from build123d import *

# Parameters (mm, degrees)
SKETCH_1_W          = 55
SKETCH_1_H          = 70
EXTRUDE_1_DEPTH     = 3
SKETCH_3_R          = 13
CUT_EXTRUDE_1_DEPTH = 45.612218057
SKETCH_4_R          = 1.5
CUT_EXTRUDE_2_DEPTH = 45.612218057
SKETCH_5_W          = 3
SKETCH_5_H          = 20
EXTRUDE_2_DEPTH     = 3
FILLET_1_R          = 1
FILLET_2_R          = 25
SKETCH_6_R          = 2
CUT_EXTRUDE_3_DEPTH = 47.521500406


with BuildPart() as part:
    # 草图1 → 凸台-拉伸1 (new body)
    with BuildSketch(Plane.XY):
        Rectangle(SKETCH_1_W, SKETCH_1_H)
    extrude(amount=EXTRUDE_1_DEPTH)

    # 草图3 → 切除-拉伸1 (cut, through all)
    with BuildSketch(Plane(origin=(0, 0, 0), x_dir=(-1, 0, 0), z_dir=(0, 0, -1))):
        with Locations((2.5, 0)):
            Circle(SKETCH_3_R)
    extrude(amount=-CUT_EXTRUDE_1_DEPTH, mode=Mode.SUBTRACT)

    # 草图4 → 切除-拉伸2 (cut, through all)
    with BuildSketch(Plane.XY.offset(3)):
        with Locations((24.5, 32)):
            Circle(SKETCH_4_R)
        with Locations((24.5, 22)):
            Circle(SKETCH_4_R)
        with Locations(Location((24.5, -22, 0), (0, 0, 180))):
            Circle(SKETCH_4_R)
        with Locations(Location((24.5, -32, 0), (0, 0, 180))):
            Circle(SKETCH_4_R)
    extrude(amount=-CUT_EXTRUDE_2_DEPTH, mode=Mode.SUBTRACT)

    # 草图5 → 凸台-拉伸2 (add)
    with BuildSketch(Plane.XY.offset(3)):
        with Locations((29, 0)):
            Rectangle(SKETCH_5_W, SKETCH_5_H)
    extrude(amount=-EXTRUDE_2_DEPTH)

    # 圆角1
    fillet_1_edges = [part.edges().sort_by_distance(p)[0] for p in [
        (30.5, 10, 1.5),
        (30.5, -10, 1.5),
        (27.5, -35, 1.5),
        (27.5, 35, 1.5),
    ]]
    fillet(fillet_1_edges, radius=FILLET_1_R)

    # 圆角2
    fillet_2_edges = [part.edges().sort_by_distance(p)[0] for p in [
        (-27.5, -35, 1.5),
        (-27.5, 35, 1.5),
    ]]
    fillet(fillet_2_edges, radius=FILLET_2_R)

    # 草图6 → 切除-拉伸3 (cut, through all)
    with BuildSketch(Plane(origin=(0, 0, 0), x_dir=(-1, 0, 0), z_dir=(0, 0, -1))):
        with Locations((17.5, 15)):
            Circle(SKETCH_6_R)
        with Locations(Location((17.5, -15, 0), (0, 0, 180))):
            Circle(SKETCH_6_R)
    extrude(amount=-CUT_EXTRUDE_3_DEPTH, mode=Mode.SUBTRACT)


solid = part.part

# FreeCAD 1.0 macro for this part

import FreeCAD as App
import Part
import Sketcher


def edges_at(feature, points):
    """Names of the edges that pass closest to the given points."""
    edges = feature.Shape.Edges
    near = lambda p: min(range(len(edges)), key=lambda i: edges[i].distToShape(Part.Vertex(*p))[0])
    return sorted({f"Edge{near(p) + 1}" for p in points})


def add_polygon(sketch, points):
    """Adds a closed chain of lines whose ends are joined by coincident constraints."""
    first, n = sketch.GeometryCount, len(points)
    for a, b in zip(points, points[1:] + points[:1]):
        sketch.addGeometry(Part.LineSegment(App.Vector(*a, 0), App.Vector(*b, 0)), False)
    for i in range(n):
        sketch.addConstraint(Sketcher.Constraint("Coincident", first + i, 2, first + (i + 1) % n, 1))

doc = App.newDocument("Part")
body = doc.addObject("PartDesign::Body", "Body")

# Sketch on XY plane
sketch1 = body.newObject("Sketcher::SketchObject", "Sketch")
sketch1.AttachmentSupport = (doc.getObject("XY_Plane"), [""])
sketch1.MapMode = "FlatFace"
add_polygon(sketch1, [(-28, 35), (-28, -35), (28, -35), (28, 35)])  # lines 0-3
sketch1.addConstraint([
    Sketcher.Constraint("Vertical", 0),
    Sketcher.Constraint("Horizontal", 1),
    Sketcher.Constraint("Vertical", 2),
    Sketcher.Constraint("Horizontal", 3),
    Sketcher.Constraint("Symmetric", 0, 2, 2, 2, -1, 1),
    Sketcher.Constraint("DistanceX", 1, 1, 1, 2, 55.0),
    Sketcher.Constraint("DistanceY", 0, 2, 0, 1, 70.0),
])
pad1 = body.newObject("PartDesign::Pad", "Pad")
pad1.Profile = sketch1
pad1.Length = 3

# Sketch on XY plane
sketch2 = body.newObject("Sketcher::SketchObject", "Sketch001")
sketch2.AttachmentSupport = (doc.getObject("XY_Plane"), [""])
sketch2.MapMode = "FlatFace"
sketch2.addGeometry(Part.Circle(App.Vector(-2, 0, 0), App.Vector(0, 0, 1), 13), False)
sketch2.addConstraint([
    Sketcher.Constraint("PointOnObject", 0, 3, -1),
    Sketcher.Constraint("Diameter", 0, 26.0),
    Sketcher.Constraint("DistanceX", 0, 3, -1, 1, 2.5),
])
pocket1 = body.newObject("PartDesign::Pocket", "Pocket")
pocket1.Profile = sketch2
pocket1.Type = "ThroughAll"
pocket1.Reversed = True

# Sketch on XY plane
sketch3 = body.newObject("Sketcher::SketchObject", "Sketch002")
sketch3.AttachmentSupport = (doc.getObject("XY_Plane"), [""])
sketch3.MapMode = "FlatFace"
sketch3.AttachmentOffset = App.Placement(App.Vector(0, 0, 3), App.Rotation())
sketch3.addGeometry([
    Part.Circle(App.Vector(24.5, 32, 0), App.Vector(0, 0, 1), 1.5),
    Part.Circle(App.Vector(24.5, 22, 0), App.Vector(0, 0, 1), 1.5),
    Part.Circle(App.Vector(24.5, -22, 0), App.Vector(0, 0, 1), 1.5),
    Part.Circle(App.Vector(24.5, -32, 0), App.Vector(0, 0, 1), 1.5),
], False)
sketch3.addConstraint([
    Sketcher.Constraint("Equal", 0, 1),
    Sketcher.Constraint("Equal", 1, 2),
    Sketcher.Constraint("Equal", 2, 3),
    Sketcher.Constraint("Symmetric", 1, 3, 2, 3, -1),
    Sketcher.Constraint("Symmetric", 0, 3, 3, 3, -1),
    Sketcher.Constraint("Vertical", 0, 3, 1, 3),
    Sketcher.Constraint("Diameter", 0, 3.0),
    Sketcher.Constraint("DistanceY", -1, 1, 0, 3, 32.0),
    Sketcher.Constraint("DistanceY", -1, 1, 1, 3, 22.0),
    Sketcher.Constraint("DistanceX", -1, 1, 0, 3, 24.5),
])
pocket2 = body.newObject("PartDesign::Pocket", "Pocket001")
pocket2.Profile = sketch3
pocket2.Type = "ThroughAll"

# Sketch on XY plane
sketch4 = body.newObject("Sketcher::SketchObject", "Sketch003")
sketch4.AttachmentSupport = (doc.getObject("XY_Plane"), [""])
sketch4.MapMode = "FlatFace"
sketch4.AttachmentOffset = App.Placement(App.Vector(0, 0, 3), App.Rotation())
add_polygon(sketch4, [(27.5, 10), (27.5, -10), (30.5, -10), (30.5, 10)])  # lines 0-3
sketch4.addConstraint([
    Sketcher.Constraint("Vertical", 0),
    Sketcher.Constraint("Horizontal", 1),
    Sketcher.Constraint("Vertical", 2),
    Sketcher.Constraint("Horizontal", 3),
    Sketcher.Constraint("DistanceX", 1, 1, 1, 2, 3.0),
    Sketcher.Constraint("DistanceY", 0, 2, 0, 1, 20.0),
    Sketcher.Constraint("DistanceY", 0, 2, -1, 1, 10.0),
    Sketcher.Constraint("DistanceX", -1, 1, 0, 2, 27.5),
])
pad2 = body.newObject("PartDesign::Pad", "Pad001")
pad2.Profile = sketch4
pad2.Length = 3
pad2.Reversed = True
doc.recompute()

fillet = body.newObject("PartDesign::Fillet", "Fillet")
fillet.Base = (pad2, edges_at(pad2, [
    (30.5, 10, 1.5),
    (30.5, -10, 1.5),
    (27.5, -35, 1.5),
    (27.5, 35, 1.5),
]))
fillet.Radius = 1
doc.recompute()

fillet2 = body.newObject("PartDesign::Fillet", "Fillet001")
fillet2.Base = (fillet, edges_at(fillet, [(-27.5, -35, 1.5), (-27.5, 35, 1.5)]))
fillet2.Radius = 25

# Sketch on XY plane
sketch5 = body.newObject("Sketcher::SketchObject", "Sketch004")
sketch5.AttachmentSupport = (doc.getObject("XY_Plane"), [""])
sketch5.MapMode = "FlatFace"
sketch5.addGeometry([
    Part.Circle(App.Vector(-17.5, 15, 0), App.Vector(0, 0, 1), 2),
    Part.Circle(App.Vector(-17.5, -15, 0), App.Vector(0, 0, 1), 2),
], False)
sketch5.addConstraint([
    Sketcher.Constraint("Equal", 0, 1),
    Sketcher.Constraint("Symmetric", 0, 3, 1, 3, -1),
    Sketcher.Constraint("Diameter", 0, 4.0),
    Sketcher.Constraint("DistanceY", -1, 1, 0, 3, 15.0),
    Sketcher.Constraint("DistanceX", 0, 3, -1, 1, 17.5),
])
pocket3 = body.newObject("PartDesign::Pocket", "Pocket002")
pocket3.Profile = sketch5
pocket3.Type = "ThroughAll"
pocket3.Reversed = True

doc.recompute()
